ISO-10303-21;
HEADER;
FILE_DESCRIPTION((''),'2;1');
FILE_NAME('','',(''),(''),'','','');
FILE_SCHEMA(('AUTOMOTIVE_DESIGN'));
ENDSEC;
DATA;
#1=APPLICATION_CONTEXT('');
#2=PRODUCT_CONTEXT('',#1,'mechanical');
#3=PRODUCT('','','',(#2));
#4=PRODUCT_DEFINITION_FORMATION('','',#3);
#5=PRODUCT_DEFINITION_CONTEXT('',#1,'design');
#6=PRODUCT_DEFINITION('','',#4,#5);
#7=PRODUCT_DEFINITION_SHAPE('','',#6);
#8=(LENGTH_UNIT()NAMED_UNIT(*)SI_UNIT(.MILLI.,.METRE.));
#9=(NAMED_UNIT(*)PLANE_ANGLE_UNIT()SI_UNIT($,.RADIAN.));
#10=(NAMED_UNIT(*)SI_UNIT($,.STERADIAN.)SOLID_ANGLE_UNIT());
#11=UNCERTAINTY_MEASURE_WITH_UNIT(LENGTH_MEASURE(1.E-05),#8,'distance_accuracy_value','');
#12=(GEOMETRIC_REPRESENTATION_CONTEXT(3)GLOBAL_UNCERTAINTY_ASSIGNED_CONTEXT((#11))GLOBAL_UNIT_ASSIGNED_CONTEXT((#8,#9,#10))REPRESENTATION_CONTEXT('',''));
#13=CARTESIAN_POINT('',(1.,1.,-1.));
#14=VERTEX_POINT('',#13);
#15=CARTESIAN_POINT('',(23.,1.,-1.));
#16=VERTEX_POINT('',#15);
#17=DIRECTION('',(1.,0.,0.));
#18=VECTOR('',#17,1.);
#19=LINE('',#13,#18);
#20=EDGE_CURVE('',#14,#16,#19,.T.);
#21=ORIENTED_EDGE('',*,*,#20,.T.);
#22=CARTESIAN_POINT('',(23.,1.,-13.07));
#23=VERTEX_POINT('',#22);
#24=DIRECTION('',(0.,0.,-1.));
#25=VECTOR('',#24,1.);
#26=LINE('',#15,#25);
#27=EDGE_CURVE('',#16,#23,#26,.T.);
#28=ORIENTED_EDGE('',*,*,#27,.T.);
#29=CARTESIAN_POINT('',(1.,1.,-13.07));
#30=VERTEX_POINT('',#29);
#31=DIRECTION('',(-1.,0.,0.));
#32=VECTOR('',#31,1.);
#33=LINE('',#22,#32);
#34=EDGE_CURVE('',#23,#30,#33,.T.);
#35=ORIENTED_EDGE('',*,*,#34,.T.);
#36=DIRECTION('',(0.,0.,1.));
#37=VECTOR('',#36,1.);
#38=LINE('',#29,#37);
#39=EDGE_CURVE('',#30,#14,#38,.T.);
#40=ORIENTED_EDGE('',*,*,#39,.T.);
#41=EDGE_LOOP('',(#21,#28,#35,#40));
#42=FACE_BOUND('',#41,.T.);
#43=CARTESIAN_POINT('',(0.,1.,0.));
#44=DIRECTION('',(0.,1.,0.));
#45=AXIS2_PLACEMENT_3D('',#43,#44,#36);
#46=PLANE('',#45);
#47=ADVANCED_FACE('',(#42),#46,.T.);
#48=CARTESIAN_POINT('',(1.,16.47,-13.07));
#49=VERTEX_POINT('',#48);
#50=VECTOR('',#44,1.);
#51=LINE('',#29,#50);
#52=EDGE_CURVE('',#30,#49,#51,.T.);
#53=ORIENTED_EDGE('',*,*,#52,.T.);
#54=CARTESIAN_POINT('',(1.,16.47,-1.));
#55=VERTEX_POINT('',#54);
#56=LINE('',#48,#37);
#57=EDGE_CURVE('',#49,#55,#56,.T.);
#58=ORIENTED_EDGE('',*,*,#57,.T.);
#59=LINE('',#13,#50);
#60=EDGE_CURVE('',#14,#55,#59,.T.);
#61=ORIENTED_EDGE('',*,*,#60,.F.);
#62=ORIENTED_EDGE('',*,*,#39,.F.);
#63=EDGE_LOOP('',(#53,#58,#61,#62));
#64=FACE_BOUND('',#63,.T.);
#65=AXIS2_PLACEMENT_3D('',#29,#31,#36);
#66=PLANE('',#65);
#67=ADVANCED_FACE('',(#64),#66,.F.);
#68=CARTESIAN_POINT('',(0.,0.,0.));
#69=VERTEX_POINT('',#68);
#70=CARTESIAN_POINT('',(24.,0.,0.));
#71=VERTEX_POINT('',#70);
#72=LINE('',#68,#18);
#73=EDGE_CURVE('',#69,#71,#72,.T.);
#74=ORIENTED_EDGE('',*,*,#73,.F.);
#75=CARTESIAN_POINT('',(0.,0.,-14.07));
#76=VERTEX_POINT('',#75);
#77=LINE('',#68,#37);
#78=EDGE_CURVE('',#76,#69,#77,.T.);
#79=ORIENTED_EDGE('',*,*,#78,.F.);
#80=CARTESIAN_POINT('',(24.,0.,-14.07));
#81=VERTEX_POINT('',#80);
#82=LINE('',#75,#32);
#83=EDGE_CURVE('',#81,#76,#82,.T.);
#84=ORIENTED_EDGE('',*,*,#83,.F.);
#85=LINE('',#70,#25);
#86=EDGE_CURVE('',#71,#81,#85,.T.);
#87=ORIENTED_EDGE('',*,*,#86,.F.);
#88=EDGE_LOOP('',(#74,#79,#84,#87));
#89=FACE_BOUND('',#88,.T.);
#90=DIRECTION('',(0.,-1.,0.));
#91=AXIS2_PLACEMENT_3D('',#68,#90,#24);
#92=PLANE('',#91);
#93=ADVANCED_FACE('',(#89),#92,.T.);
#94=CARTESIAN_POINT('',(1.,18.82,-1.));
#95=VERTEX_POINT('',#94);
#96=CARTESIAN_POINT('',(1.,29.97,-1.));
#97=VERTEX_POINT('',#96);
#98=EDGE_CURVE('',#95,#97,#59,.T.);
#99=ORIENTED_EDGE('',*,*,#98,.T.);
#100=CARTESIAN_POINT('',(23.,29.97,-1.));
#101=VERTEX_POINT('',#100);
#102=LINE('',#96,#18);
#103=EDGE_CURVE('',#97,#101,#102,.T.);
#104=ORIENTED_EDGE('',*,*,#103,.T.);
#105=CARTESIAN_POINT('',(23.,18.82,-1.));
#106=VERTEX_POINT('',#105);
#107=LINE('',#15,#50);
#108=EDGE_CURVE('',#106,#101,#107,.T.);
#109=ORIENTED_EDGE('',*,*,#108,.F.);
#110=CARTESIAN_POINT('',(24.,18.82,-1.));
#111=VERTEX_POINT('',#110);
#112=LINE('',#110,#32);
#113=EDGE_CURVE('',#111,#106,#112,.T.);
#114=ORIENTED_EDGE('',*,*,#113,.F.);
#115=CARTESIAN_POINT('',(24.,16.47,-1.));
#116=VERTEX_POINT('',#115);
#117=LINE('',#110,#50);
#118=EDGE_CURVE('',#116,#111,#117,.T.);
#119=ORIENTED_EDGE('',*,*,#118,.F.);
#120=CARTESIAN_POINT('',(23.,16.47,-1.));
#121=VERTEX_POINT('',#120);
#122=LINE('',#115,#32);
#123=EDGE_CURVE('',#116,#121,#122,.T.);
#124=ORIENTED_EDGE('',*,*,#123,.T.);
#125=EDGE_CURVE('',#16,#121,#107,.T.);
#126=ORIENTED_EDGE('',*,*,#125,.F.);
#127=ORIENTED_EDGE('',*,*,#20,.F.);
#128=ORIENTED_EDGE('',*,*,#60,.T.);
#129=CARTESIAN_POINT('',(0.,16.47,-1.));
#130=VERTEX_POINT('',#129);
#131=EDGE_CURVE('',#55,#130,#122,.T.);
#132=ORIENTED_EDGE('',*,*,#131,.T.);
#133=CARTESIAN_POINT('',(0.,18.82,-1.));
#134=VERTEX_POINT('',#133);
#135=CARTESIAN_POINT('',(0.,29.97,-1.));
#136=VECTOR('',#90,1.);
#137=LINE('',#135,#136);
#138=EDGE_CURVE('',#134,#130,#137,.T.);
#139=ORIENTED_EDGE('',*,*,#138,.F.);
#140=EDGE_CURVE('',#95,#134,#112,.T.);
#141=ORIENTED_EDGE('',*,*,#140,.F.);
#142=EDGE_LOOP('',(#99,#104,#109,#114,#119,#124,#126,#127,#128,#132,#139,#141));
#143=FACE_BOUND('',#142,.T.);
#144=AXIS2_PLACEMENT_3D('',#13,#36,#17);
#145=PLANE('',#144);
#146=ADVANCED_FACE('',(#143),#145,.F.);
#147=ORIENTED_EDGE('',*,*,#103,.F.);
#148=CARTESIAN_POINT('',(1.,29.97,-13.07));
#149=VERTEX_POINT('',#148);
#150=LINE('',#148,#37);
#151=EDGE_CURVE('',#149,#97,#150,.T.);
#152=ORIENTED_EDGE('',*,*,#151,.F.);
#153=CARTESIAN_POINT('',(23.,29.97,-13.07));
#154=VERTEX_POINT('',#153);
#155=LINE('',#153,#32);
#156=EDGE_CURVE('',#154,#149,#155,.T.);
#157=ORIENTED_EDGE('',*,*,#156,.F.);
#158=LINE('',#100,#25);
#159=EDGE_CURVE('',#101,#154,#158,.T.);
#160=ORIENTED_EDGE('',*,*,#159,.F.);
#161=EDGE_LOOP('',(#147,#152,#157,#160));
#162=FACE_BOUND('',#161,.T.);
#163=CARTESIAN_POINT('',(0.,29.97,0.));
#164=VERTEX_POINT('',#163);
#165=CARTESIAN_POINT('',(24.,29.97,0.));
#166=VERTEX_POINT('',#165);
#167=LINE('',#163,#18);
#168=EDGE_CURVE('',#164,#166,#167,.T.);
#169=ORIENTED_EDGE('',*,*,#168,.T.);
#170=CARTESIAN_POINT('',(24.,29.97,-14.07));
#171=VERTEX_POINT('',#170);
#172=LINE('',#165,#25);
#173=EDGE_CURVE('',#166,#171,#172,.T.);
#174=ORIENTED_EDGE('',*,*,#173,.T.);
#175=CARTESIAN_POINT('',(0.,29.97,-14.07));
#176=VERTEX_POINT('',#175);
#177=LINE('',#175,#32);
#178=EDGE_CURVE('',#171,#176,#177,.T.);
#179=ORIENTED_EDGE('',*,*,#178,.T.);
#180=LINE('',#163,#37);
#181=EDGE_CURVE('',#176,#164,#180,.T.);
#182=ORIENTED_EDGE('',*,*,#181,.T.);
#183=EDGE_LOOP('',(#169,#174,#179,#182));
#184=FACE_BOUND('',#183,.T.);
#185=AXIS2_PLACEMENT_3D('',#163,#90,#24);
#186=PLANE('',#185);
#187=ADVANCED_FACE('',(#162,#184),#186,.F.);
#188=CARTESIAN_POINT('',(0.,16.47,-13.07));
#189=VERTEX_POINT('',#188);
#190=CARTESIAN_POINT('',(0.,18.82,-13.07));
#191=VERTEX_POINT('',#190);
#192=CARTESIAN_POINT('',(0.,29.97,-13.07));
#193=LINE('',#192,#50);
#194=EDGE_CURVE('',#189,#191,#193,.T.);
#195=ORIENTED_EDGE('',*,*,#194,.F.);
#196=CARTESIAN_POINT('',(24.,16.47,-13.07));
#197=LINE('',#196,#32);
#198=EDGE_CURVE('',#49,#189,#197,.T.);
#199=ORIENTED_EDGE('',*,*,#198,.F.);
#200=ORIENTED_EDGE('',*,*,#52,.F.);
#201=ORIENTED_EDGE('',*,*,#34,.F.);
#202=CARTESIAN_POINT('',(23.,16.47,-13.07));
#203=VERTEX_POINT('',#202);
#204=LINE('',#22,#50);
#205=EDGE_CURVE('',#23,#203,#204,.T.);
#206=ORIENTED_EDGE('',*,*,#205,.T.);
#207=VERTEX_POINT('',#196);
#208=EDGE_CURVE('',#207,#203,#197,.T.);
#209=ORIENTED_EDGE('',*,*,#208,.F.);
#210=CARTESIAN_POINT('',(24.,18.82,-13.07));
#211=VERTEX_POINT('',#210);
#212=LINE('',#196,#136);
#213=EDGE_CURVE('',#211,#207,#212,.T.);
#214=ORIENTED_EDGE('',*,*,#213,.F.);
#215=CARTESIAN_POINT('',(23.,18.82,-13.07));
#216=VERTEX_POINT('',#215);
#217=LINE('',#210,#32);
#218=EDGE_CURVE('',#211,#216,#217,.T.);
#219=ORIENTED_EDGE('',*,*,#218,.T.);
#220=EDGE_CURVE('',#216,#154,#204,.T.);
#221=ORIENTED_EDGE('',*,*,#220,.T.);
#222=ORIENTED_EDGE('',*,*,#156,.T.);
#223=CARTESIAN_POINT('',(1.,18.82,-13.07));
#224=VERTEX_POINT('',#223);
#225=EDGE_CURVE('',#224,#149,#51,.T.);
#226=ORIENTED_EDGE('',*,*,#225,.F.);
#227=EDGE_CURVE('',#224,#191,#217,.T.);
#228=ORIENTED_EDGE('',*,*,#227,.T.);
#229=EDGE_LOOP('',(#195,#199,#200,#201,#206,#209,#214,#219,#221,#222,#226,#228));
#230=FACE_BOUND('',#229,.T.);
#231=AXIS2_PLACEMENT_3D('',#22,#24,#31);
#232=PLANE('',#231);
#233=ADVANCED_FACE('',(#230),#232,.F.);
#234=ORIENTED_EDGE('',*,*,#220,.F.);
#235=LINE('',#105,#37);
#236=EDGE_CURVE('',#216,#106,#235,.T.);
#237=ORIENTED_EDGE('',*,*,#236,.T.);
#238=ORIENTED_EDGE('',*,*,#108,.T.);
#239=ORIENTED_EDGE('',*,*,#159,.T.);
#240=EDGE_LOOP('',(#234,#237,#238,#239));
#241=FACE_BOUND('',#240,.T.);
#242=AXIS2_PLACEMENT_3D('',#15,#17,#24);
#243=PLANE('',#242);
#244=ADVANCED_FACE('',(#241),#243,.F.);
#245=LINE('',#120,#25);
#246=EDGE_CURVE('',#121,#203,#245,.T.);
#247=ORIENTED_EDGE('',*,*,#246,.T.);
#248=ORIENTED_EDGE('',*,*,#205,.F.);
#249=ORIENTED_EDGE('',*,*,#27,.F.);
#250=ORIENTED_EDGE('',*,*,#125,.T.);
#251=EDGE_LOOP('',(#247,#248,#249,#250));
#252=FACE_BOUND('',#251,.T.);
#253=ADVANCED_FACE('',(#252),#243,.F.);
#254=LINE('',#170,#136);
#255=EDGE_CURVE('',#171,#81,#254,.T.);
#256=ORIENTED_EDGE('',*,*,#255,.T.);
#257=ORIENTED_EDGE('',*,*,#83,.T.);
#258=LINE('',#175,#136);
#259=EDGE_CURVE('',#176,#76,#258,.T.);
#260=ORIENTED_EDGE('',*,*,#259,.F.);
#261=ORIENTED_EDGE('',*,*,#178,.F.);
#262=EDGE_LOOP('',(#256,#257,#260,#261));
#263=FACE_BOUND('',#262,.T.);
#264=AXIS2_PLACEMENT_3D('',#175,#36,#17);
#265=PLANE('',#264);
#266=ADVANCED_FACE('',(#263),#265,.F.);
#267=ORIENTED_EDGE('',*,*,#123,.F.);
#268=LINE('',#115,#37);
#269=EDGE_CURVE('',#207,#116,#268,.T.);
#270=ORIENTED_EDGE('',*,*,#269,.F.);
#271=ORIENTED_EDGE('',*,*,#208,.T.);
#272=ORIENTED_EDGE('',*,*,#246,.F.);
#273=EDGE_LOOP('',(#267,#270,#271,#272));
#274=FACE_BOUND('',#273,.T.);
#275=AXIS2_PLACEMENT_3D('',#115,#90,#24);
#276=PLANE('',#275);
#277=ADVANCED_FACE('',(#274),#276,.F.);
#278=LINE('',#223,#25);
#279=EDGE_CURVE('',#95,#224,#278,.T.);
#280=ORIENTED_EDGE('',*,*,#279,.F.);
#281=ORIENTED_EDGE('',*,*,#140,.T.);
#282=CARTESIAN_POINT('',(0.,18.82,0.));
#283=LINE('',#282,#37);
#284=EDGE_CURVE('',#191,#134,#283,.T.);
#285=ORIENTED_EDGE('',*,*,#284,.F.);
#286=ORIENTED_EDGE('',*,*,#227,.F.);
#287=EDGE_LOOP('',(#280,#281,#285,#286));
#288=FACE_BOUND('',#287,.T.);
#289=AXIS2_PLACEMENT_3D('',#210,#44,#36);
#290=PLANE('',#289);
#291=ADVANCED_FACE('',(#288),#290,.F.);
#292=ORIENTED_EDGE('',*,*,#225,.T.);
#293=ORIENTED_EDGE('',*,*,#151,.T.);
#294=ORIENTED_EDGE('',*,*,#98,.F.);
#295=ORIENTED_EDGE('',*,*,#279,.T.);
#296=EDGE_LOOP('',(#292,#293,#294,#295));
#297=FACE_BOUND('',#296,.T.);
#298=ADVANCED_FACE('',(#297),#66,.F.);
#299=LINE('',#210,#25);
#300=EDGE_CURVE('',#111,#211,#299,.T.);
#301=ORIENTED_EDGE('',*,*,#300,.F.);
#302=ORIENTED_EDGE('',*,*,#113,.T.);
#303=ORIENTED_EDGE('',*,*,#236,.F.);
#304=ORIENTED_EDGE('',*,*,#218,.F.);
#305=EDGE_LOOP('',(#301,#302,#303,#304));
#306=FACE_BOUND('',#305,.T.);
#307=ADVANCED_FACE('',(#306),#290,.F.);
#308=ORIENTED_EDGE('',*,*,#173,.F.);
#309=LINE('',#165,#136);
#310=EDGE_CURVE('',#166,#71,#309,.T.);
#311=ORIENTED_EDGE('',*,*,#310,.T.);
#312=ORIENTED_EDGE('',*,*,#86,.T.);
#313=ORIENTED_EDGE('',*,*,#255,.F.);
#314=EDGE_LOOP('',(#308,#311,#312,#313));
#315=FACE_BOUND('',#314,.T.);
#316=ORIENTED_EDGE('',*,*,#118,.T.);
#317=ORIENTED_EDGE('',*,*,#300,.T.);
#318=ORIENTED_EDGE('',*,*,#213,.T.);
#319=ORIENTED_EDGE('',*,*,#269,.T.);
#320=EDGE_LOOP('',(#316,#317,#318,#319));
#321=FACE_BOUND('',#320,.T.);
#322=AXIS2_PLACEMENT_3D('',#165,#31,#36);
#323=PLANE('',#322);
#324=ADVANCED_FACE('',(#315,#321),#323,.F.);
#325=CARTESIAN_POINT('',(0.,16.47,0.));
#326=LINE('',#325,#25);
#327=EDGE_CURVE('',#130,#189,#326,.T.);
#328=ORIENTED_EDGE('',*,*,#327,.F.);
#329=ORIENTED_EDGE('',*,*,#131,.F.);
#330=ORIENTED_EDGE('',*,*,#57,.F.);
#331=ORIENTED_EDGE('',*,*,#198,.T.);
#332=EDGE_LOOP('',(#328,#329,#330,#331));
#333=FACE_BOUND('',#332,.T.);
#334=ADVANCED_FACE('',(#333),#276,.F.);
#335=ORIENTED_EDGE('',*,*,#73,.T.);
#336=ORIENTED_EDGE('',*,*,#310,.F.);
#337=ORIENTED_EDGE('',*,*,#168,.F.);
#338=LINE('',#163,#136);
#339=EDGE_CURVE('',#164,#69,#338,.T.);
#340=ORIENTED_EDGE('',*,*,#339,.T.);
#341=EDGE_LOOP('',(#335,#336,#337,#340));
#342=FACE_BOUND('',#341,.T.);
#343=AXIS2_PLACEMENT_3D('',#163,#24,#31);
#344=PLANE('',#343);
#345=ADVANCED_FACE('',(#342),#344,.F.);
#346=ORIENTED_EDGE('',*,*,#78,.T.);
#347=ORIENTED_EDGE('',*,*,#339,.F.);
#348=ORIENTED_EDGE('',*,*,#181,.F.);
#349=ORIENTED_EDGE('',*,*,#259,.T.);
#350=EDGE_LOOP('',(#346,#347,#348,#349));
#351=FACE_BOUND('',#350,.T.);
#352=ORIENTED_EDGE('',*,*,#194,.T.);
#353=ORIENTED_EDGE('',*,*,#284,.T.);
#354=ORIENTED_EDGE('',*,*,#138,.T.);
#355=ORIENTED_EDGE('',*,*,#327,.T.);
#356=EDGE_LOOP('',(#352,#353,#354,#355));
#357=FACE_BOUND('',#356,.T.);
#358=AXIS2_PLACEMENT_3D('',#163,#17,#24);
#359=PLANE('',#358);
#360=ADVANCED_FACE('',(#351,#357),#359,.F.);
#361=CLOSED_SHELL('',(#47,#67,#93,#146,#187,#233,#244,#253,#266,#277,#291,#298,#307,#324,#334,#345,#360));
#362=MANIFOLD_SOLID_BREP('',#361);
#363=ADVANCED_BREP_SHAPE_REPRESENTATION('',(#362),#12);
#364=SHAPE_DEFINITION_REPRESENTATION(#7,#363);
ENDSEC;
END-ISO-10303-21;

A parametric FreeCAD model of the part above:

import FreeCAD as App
import Part
import Sketcher

doc = App.newDocument("Part")
body = doc.addObject("PartDesign::Body", "Body")

sketch1 = body.newObject("Sketcher::SketchObject", "Sketch")
sketch1.AttachmentSupport = (doc.getObject("XZ_Plane"), [""])
sketch1.MapMode = "FlatFace"
sketch1.addGeometry(Part.LineSegment(App.Vector(0, -14.07, 0), App.Vector(0, 0, 0)), False)
sketch1.addGeometry(Part.LineSegment(App.Vector(0, 0, 0), App.Vector(24, 0, 0)), False)
sketch1.addGeometry(Part.LineSegment(App.Vector(24, 0, 0), App.Vector(24, -14.07, 0)), False)
sketch1.addGeometry(Part.LineSegment(App.Vector(24, -14.07, 0), App.Vector(0, -14.07, 0)), False)
sketch1.addConstraint(Sketcher.Constraint("Coincident", 0, 2, 1, 1))
sketch1.addConstraint(Sketcher.Constraint("Coincident", 1, 2, 2, 1))
sketch1.addConstraint(Sketcher.Constraint("Coincident", 2, 2, 3, 1))
sketch1.addConstraint(Sketcher.Constraint("Coincident", 3, 2, 0, 1))
sketch1.addConstraint(Sketcher.Constraint("Vertical", 0))
sketch1.addConstraint(Sketcher.Constraint("Horizontal", 1))
sketch1.addConstraint(Sketcher.Constraint("Vertical", 2))
sketch1.addConstraint(Sketcher.Constraint("Horizontal", 3))
sketch1.addConstraint(Sketcher.Constraint("Coincident", 0, 2, -1, 1))
sketch1.addConstraint(Sketcher.Constraint("DistanceX", 1, 1, 1, 2, 24.0))
sketch1.addConstraint(Sketcher.Constraint("DistanceY", 0, 1, 0, 2, 14.07))
pad1 = body.newObject("PartDesign::Pad", "Pad")
pad1.Profile = sketch1
pad1.Length = 29.97
pad1.Reversed = True

sketch2 = body.newObject("Sketcher::SketchObject", "Sketch001")
sketch2.AttachmentSupport = (doc.getObject("XZ_Plane"), [""])
sketch2.MapMode = "FlatFace"
sketch2.AttachmentOffset = App.Placement(App.Vector(0, 0, -29.97), App.Rotation())
sketch2.addGeometry(Part.LineSegment(App.Vector(1, -13.07, 0), App.Vector(1, -1, 0)), False)
sketch2.addGeometry(Part.LineSegment(App.Vector(1, -1, 0), App.Vector(23, -1, 0)), False)
sketch2.addGeometry(Part.LineSegment(App.Vector(23, -1, 0), App.Vector(23, -13.07, 0)), False)
sketch2.addGeometry(Part.LineSegment(App.Vector(23, -13.07, 0), App.Vector(1, -13.07, 0)), False)
sketch2.addConstraint(Sketcher.Constraint("Coincident", 0, 2, 1, 1))
sketch2.addConstraint(Sketcher.Constraint("Coincident", 1, 2, 2, 1))
sketch2.addConstraint(Sketcher.Constraint("Coincident", 2, 2, 3, 1))
sketch2.addConstraint(Sketcher.Constraint("Coincident", 3, 2, 0, 1))
sketch2.addConstraint(Sketcher.Constraint("Vertical", 0))
sketch2.addConstraint(Sketcher.Constraint("Horizontal", 1))
sketch2.addConstraint(Sketcher.Constraint("Vertical", 2))
sketch2.addConstraint(Sketcher.Constraint("Horizontal", 3))
sketch2.addConstraint(Sketcher.Constraint("DistanceX", 1, 1, 1, 2, 22.0))
sketch2.addConstraint(Sketcher.Constraint("DistanceX", -1, 1, 0, 2, 1.0))
sketch2.addConstraint(Sketcher.Constraint("DistanceY", 0, 2, -1, 1, 1.0))
sketch2.addConstraint(Sketcher.Constraint("DistanceY", 0, 1, 0, 2, 12.07))
pocket1 = body.newObject("PartDesign::Pocket", "Pocket")
pocket1.Profile = sketch2
pocket1.Length = 28.97
pocket1.Reversed = True

sketch3 = body.newObject("Sketcher::SketchObject", "Sketch002")
sketch3.AttachmentSupport = (doc.getObject("YZ_Plane"), [""])
sketch3.MapMode = "FlatFace"
sketch3.addGeometry(Part.LineSegment(App.Vector(18.82, -13.07, 0), App.Vector(16.47, -13.07, 0)), False)
sketch3.addGeometry(Part.LineSegment(App.Vector(16.47, -13.07, 0), App.Vector(16.47, -1, 0)), False)
sketch3.addGeometry(Part.LineSegment(App.Vector(16.47, -1, 0), App.Vector(18.82, -1, 0)), False)
sketch3.addGeometry(Part.LineSegment(App.Vector(18.82, -1, 0), App.Vector(18.82, -13.07, 0)), False)
sketch3.addConstraint(Sketcher.Constraint("Coincident", 0, 2, 1, 1))
sketch3.addConstraint(Sketcher.Constraint("Coincident", 1, 2, 2, 1))
sketch3.addConstraint(Sketcher.Constraint("Coincident", 2, 2, 3, 1))
sketch3.addConstraint(Sketcher.Constraint("Coincident", 3, 2, 0, 1))
sketch3.addConstraint(Sketcher.Constraint("Horizontal", 0))
sketch3.addConstraint(Sketcher.Constraint("Vertical", 1))
sketch3.addConstraint(Sketcher.Constraint("Horizontal", 2))
sketch3.addConstraint(Sketcher.Constraint("Vertical", 3))
sketch3.addConstraint(Sketcher.Constraint("DistanceY", 1, 2, -1, 1, 1.0))
sketch3.addConstraint(Sketcher.Constraint("DistanceX", 0, 2, 0, 1, 2.35))
sketch3.addConstraint(Sketcher.Constraint("DistanceY", 1, 1, 1, 2, 12.07))
sketch3.addConstraint(Sketcher.Constraint("DistanceX", -1, 1, 0, 2, 16.47))
pocket2 = body.newObject("PartDesign::Pocket", "Pocket001")
pocket2.Profile = sketch3
pocket2.Type = "ThroughAll"
pocket2.Midplane = True

doc.recompute()
